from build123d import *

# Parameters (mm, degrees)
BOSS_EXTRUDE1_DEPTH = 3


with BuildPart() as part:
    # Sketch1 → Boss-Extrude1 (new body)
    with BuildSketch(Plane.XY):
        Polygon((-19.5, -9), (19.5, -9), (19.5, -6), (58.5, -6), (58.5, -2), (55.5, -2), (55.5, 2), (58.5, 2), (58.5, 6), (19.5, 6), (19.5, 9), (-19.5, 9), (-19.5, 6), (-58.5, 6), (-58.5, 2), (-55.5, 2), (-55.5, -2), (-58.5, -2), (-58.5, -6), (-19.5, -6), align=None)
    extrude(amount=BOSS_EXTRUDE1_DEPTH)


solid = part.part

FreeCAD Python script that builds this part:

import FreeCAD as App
import Part
import Sketcher
from FreeCAD import Vector

doc = App.newDocument("Part")
body = doc.addObject("PartDesign::Body", "Body")

sketch1 = body.newObject("Sketcher::SketchObject", "Sketch")
sketch1.AttachmentSupport = (doc.getObject("XY_Plane"), [""])
sketch1.MapMode = "FlatFace"
sketch1.addGeometry([
    Part.LineSegment(Vector(-19.5, -9, 0), Vector(19.5, -9, 0)),
    Part.LineSegment(Vector(19.5, -9, 0), Vector(19.5, -6, 0)),
    Part.LineSegment(Vector(19.5, -6, 0), Vector(58.5, -6, 0)),
    Part.LineSegment(Vector(58.5, -6, 0), Vector(58.5, -2, 0)),
    Part.LineSegment(Vector(58.5, -2, 0), Vector(55.5, -2, 0)),
    Part.LineSegment(Vector(55.5, -2, 0), Vector(55.5, 2, 0)),
    Part.LineSegment(Vector(55.5, 2, 0), Vector(58.5, 2, 0)),
    Part.LineSegment(Vector(58.5, 2, 0), Vector(58.5, 6, 0)),
    Part.LineSegment(Vector(58.5, 6, 0), Vector(19.5, 6, 0)),
    Part.LineSegment(Vector(19.5, 6, 0), Vector(19.5, 9, 0)),
    Part.LineSegment(Vector(19.5, 9, 0), Vector(-19.5, 9, 0)),
    Part.LineSegment(Vector(-19.5, 9, 0), Vector(-19.5, 6, 0)),
    Part.LineSegment(Vector(-19.5, 6, 0), Vector(-58.5, 6, 0)),
    Part.LineSegment(Vector(-58.5, 6, 0), Vector(-58.5, 2, 0)),
    Part.LineSegment(Vector(-58.5, 2, 0), Vector(-55.5, 2, 0)),
    Part.LineSegment(Vector(-55.5, 2, 0), Vector(-55.5, -2, 0)),
    Part.LineSegment(Vector(-55.5, -2, 0), Vector(-58.5, -2, 0)),
    Part.LineSegment(Vector(-58.5, -2, 0), Vector(-58.5, -6, 0)),
    Part.LineSegment(Vector(-58.5, -6, 0), Vector(-19.5, -6, 0)),
    Part.LineSegment(Vector(-19.5, -6, 0), Vector(-19.5, -9, 0)),
], False)
sketch1.addConstraint([
    Sketcher.Constraint("Coincident", 0, 2, 1, 1),
    Sketcher.Constraint("Coincident", 1, 2, 2, 1),
    Sketcher.Constraint("Coincident", 2, 2, 3, 1),
    Sketcher.Constraint("Coincident", 3, 2, 4, 1),
    Sketcher.Constraint("Coincident", 4, 2, 5, 1),
    Sketcher.Constraint("Coincident", 5, 2, 6, 1),
    Sketcher.Constraint("Coincident", 6, 2, 7, 1),
    Sketcher.Constraint("Coincident", 7, 2, 8, 1),
    Sketcher.Constraint("Coincident", 8, 2, 9, 1),
    Sketcher.Constraint("Coincident", 9, 2, 10, 1),
    Sketcher.Constraint("Coincident", 10, 2, 11, 1),
    Sketcher.Constraint("Coincident", 11, 2, 12, 1),
    Sketcher.Constraint("Coincident", 12, 2, 13, 1),
    Sketcher.Constraint("Coincident", 13, 2, 14, 1),
    Sketcher.Constraint("Coincident", 14, 2, 15, 1),
    Sketcher.Constraint("Coincident", 15, 2, 16, 1),
    Sketcher.Constraint("Coincident", 16, 2, 17, 1),
    Sketcher.Constraint("Coincident", 17, 2, 18, 1),
    Sketcher.Constraint("Coincident", 18, 2, 19, 1),
    Sketcher.Constraint("Coincident", 19, 2, 0, 1),
    Sketcher.Constraint("Horizontal", 0),
    Sketcher.Constraint("Vertical", 1),
    Sketcher.Constraint("Horizontal", 2),
    Sketcher.Constraint("Vertical", 3),
    Sketcher.Constraint("Horizontal", 4),
    Sketcher.Constraint("Vertical", 5),
    Sketcher.Constraint("Horizontal", 6),
    Sketcher.Constraint("Vertical", 7),
    Sketcher.Constraint("Horizontal", 8),
    Sketcher.Constraint("Vertical", 9),
    Sketcher.Constraint("Horizontal", 10),
    Sketcher.Constraint("Vertical", 11),
    Sketcher.Constraint("Horizontal", 12),
    Sketcher.Constraint("Vertical", 13),
    Sketcher.Constraint("Horizontal", 14),
    Sketcher.Constraint("Vertical", 15),
    Sketcher.Constraint("Horizontal", 16),
    Sketcher.Constraint("Vertical", 17),
    Sketcher.Constraint("Horizontal", 18),
    Sketcher.Constraint("Vertical", 19),
    Sketcher.Constraint("Symmetric", 0, 2, 10, 2, -1, 1),
    Sketcher.Constraint("Symmetric", 2, 2, 12, 2, -1, 1),
    Sketcher.Constraint("Symmetric", 4, 2, 14, 2, -1, 1),
    Sketcher.Constraint("Symmetric", 6, 2, 16, 2, -1, 1),
    Sketcher.Constraint("Symmetric", 8, 2, 18, 2, -1, 1),
    Sketcher.Constraint("Symmetric", 8, 2, 11, 2, -2),
    Sketcher.Constraint("Symmetric", 6, 2, 13, 2, -2),
    Sketcher.Constraint("Equal", 0, 2),
    Sketcher.Constraint("Equal", 16, 1),
    Sketcher.Constraint("Equal", 3, 5),
    Sketcher.Constraint("DistanceX", 0, 1, 0, 2, 39.0),
    Sketcher.Constraint("DistanceX", 4, 2, 4, 1, 3.0),
    Sketcher.Constraint("DistanceY", 3, 1, 3, 2, 4.0),
])
pad1 = body.newObject("PartDesign::Pad", "Pad")
pad1.Profile = sketch1
pad1.Length = 3

doc.recompute()
